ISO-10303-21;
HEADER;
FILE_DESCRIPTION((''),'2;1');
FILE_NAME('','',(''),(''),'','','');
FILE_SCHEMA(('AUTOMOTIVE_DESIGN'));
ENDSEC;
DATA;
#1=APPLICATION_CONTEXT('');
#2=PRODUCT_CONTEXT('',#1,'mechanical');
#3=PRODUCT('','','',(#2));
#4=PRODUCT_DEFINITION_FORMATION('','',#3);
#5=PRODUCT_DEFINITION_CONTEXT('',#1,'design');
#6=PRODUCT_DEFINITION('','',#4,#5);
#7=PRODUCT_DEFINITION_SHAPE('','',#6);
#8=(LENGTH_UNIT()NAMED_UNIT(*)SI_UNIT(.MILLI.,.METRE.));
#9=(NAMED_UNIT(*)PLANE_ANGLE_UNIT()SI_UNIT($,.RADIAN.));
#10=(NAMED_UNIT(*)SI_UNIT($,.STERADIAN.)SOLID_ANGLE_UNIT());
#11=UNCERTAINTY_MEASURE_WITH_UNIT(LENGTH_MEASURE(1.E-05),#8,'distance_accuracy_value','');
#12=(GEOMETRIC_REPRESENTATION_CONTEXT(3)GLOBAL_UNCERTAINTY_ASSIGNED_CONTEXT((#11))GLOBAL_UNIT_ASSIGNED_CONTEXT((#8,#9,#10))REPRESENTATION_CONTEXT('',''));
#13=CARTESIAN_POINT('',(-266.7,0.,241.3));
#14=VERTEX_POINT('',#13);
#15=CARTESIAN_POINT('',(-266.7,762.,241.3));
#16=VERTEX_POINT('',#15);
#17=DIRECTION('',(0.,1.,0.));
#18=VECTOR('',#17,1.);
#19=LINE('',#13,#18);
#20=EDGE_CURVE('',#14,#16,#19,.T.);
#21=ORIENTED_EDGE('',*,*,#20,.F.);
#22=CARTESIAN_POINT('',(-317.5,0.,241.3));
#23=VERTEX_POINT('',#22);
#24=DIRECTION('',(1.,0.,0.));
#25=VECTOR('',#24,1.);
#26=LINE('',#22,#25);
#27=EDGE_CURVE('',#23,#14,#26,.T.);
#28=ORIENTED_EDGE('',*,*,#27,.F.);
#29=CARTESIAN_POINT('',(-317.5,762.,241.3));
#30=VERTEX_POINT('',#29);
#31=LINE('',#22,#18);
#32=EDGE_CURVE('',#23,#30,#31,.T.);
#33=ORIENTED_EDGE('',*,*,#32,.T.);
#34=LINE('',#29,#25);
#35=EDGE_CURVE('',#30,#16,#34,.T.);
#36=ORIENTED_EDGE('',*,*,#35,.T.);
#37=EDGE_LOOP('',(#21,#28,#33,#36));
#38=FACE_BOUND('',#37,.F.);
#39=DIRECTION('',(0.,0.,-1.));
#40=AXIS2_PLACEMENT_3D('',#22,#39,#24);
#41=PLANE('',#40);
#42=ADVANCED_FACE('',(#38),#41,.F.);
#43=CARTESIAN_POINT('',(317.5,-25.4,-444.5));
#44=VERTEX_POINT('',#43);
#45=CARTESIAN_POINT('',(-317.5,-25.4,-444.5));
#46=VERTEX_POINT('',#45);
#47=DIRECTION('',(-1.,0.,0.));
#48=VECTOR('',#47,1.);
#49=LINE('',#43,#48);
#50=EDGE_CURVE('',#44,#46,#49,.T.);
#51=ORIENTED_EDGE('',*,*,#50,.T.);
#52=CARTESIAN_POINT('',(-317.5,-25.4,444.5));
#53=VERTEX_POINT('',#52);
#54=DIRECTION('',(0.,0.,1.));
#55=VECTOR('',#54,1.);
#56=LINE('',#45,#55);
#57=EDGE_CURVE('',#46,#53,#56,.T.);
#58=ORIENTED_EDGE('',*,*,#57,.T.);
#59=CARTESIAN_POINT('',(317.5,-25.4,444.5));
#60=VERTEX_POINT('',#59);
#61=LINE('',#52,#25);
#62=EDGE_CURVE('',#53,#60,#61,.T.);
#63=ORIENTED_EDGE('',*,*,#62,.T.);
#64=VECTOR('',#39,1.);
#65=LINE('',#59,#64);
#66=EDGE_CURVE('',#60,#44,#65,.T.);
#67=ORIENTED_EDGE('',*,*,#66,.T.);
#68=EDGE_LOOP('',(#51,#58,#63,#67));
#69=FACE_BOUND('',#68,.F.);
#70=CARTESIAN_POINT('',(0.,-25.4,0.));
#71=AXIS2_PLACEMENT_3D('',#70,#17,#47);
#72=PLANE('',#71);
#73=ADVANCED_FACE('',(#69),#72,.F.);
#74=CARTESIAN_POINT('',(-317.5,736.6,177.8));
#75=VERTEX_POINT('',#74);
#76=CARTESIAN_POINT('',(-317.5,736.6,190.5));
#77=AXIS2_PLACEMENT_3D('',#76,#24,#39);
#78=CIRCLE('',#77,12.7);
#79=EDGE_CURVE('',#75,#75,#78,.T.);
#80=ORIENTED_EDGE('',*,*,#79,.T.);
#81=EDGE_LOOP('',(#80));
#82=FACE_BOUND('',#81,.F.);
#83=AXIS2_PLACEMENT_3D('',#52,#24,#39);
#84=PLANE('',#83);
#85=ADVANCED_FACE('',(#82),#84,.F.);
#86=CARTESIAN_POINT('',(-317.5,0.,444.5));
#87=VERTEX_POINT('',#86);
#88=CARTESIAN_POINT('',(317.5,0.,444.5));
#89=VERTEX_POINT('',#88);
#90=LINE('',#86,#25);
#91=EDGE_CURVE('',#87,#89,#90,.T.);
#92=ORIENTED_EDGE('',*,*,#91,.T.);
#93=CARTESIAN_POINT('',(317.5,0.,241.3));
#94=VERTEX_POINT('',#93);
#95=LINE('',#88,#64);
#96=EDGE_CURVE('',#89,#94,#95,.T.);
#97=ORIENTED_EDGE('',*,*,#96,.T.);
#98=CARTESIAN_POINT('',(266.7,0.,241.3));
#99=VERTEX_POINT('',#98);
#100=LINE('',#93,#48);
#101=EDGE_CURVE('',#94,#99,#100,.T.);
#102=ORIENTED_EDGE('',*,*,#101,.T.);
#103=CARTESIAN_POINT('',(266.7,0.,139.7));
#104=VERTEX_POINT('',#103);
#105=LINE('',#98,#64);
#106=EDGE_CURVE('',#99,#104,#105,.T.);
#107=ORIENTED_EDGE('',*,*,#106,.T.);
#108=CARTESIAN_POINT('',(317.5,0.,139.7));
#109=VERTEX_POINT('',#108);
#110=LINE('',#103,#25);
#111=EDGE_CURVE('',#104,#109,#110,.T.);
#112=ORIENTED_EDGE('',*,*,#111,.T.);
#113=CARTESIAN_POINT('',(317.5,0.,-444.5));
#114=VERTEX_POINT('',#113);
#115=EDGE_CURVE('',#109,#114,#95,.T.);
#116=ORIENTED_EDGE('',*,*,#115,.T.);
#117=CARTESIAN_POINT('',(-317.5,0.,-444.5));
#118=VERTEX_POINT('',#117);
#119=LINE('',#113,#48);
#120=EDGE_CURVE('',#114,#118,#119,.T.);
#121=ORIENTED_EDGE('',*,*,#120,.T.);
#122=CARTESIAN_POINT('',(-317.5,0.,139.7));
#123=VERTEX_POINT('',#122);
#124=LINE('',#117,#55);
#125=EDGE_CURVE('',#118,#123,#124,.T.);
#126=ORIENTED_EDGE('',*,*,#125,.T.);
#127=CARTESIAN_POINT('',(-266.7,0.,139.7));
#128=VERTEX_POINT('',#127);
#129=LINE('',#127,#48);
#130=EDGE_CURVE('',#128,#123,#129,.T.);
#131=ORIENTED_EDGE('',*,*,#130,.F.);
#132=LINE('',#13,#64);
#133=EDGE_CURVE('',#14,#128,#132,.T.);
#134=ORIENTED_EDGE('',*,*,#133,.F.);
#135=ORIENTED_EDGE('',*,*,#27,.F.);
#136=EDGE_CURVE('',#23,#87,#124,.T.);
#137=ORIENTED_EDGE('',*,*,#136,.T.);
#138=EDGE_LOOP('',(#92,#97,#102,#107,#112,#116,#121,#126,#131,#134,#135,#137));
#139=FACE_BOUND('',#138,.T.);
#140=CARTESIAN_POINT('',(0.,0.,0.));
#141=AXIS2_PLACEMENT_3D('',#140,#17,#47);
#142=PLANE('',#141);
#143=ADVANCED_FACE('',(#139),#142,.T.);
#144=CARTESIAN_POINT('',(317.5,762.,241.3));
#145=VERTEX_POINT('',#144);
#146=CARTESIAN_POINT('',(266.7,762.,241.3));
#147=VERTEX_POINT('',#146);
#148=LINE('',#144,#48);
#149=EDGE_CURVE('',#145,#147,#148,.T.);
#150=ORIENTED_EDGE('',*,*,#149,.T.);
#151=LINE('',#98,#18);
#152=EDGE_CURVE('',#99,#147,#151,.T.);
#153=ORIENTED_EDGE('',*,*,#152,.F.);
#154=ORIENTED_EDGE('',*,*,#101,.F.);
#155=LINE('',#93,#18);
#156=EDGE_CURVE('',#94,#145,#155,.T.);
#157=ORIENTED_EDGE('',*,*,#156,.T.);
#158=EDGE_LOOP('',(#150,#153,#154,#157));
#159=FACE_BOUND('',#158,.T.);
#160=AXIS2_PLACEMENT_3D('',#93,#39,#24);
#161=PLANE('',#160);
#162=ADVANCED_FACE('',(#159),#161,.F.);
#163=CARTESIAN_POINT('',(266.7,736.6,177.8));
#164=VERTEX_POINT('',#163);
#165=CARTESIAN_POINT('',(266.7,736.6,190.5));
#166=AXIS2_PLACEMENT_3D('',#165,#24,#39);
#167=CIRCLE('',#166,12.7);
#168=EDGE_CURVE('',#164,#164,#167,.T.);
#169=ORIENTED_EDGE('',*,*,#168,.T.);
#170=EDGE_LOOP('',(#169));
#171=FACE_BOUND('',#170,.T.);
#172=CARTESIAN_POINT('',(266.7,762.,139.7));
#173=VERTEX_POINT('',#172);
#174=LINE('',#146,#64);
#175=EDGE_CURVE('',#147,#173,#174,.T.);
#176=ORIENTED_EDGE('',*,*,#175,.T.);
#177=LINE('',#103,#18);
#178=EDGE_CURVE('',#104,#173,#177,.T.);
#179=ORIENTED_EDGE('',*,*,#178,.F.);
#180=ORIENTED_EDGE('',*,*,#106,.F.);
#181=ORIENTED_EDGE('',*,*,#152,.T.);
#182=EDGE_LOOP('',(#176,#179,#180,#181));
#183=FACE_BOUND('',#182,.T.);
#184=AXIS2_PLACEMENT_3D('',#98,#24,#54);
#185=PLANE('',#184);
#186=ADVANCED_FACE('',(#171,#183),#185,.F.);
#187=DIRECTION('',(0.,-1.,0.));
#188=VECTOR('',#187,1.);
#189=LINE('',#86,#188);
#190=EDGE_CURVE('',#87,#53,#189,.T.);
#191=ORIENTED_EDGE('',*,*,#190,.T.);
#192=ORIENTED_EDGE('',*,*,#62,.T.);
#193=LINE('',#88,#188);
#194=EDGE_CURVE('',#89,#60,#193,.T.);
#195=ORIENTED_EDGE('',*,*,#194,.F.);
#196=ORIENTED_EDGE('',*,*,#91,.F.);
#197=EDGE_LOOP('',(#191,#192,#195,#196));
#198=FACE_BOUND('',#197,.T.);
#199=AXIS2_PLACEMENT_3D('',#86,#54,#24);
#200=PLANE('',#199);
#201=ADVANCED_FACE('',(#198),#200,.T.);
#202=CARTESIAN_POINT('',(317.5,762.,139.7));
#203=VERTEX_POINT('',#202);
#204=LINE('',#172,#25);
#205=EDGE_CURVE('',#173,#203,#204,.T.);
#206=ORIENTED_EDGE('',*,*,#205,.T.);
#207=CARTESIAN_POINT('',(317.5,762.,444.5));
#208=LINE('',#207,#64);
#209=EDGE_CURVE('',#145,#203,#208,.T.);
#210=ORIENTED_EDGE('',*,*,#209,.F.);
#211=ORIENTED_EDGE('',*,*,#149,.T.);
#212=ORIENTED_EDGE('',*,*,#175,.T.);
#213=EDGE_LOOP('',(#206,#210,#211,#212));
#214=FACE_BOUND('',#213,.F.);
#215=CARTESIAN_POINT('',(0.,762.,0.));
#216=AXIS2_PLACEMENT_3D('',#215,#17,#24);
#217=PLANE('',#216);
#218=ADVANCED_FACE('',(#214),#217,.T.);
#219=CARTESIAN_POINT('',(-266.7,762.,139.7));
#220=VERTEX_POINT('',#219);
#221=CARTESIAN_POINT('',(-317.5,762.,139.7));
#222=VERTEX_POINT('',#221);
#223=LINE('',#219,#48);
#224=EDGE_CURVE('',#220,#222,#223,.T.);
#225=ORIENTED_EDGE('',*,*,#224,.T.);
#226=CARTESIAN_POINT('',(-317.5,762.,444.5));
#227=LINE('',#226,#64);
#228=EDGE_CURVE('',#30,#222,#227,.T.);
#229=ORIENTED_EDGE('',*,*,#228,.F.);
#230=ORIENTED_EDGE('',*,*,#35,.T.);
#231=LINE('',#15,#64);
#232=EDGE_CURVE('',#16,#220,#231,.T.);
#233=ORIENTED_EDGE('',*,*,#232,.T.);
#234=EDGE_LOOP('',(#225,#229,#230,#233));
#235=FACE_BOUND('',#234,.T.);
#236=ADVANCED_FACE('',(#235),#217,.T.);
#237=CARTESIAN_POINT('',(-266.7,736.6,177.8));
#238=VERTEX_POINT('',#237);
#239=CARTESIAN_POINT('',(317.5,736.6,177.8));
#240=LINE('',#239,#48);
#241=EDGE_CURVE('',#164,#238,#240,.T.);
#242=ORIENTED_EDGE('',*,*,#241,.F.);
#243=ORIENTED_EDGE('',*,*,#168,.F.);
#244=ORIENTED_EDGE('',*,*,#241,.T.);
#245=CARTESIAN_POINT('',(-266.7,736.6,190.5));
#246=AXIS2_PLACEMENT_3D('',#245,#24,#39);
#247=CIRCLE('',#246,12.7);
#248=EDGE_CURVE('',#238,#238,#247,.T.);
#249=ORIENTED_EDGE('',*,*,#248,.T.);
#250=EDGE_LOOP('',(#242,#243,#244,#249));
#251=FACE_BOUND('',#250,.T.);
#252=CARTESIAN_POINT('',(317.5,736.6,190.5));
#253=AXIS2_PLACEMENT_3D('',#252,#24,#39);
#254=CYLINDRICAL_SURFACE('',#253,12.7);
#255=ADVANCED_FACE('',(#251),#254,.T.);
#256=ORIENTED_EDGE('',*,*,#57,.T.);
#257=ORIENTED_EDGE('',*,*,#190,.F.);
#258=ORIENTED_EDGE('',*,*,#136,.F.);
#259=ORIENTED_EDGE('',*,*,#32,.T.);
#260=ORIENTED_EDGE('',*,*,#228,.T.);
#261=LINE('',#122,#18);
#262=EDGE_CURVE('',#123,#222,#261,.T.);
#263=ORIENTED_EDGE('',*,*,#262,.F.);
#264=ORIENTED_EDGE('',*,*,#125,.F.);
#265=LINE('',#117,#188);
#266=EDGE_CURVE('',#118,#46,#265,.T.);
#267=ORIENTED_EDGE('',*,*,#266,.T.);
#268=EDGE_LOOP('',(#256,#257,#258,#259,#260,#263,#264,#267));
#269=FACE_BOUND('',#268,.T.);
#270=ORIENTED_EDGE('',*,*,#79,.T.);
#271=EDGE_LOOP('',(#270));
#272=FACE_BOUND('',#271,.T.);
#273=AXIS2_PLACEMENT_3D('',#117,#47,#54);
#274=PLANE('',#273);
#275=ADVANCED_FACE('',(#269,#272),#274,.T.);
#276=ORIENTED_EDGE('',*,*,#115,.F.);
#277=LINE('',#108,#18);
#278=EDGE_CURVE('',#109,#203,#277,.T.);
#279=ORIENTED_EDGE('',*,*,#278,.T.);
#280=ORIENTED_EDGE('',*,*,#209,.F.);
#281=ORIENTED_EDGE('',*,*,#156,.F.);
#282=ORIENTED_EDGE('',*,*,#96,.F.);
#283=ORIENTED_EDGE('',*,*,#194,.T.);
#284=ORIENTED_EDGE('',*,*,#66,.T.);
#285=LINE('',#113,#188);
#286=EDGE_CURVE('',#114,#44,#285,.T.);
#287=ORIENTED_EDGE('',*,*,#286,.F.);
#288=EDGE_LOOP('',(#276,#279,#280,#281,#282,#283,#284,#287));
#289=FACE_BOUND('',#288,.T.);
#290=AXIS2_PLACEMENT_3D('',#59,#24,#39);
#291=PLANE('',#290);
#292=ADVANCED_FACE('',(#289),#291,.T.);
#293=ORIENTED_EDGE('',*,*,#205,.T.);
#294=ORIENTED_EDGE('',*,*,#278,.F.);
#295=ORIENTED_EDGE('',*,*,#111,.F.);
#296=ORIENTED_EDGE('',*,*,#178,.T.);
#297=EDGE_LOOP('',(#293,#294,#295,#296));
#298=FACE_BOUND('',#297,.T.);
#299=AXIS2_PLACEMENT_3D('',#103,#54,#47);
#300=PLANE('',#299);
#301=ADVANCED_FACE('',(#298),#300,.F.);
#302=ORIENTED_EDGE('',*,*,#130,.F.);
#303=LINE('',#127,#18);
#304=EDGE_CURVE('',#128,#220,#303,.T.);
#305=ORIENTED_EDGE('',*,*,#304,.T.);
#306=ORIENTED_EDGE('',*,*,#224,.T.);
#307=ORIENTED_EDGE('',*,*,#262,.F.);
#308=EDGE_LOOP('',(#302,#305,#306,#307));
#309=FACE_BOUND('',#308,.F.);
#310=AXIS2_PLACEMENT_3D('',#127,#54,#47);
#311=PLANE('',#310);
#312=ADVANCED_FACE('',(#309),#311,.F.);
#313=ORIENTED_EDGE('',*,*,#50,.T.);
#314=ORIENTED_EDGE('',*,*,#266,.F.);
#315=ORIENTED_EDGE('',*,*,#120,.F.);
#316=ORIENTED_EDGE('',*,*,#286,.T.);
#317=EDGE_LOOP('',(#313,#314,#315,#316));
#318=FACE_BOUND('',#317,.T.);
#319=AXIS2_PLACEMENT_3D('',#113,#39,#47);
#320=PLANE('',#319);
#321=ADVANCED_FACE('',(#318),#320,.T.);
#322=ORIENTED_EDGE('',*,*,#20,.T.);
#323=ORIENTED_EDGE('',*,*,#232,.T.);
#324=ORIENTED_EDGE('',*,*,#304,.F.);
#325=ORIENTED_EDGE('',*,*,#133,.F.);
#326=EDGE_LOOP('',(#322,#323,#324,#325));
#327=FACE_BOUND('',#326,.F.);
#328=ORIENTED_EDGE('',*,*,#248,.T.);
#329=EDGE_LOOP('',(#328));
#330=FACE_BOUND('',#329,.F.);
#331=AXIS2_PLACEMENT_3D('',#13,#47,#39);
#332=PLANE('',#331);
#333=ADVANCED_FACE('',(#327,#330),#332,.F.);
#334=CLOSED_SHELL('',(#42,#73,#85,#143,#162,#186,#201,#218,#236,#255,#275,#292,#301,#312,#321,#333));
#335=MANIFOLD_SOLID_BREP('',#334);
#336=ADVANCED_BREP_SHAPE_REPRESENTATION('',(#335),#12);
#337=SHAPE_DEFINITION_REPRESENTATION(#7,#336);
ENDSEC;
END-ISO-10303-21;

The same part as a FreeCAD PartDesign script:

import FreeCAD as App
import Part
import Sketcher
from FreeCAD import Vector
Q = App.Units.Quantity


def add_polygon(sketch, points):
    """Adds a closed chain of lines whose ends are joined by coincident constraints."""
    first, n = sketch.GeometryCount, len(points)
    for a, b in zip(points, points[1:] + points[:1]):
        sketch.addGeometry(Part.LineSegment(App.Vector(*a, 0), App.Vector(*b, 0)), False)
    for i in range(n):
        sketch.addConstraint(Sketcher.Constraint("Coincident", first + i, 2, first + (i + 1) % n, 1))

doc = App.newDocument("Part")
params = doc.addObject("Spreadsheet::Sheet", "Params")
for row, (alias, value) in enumerate([
    ("sketch1_width", "25 in"),
    ("sketch1_height", "35 in"),
    ("pad1_length", "1 in"),
    ("sketch2_width", "2 in"),
    ("sketch2_height", "4 in"),
    ("pad2_length", "30 in"),
    ("sketch3_diameter", "1 in"),
], start=1):
    params.set(f"A{row}", alias)
    params.set(f"B{row}", "=" + value)
    params.setAlias(f"B{row}", alias)

body = doc.addObject("PartDesign::Body", "Body")

# Sketch on XZ plane
sketch1 = body.newObject("Sketcher::SketchObject", "Sketch")
sketch1.AttachmentSupport = (doc.getObject("XZ_Plane"), [""])
sketch1.MapMode = "FlatFace"
add_polygon(sketch1, [(-318, -444), (-318, 444), (318, 444), (318, -444)])  # lines 0-3
sketch1.addConstraint(Sketcher.Constraint("Vertical", 0))
sketch1.addConstraint(Sketcher.Constraint("Horizontal", 1))
sketch1.addConstraint(Sketcher.Constraint("Vertical", 2))
sketch1.addConstraint(Sketcher.Constraint("Horizontal", 3))
sketch1.addConstraint(Sketcher.Constraint("Symmetric", 0, 2, 2, 2, -1, 1))
sketch1.addConstraint(Sketcher.Constraint("DistanceX", 1, 1, 1, 2, Q("25 in")))
sketch1.addConstraint(Sketcher.Constraint("DistanceY", 0, 1, 0, 2, Q("35 in")))
sketch1.setExpression("Constraints[9]", "Params.sketch1_width")
sketch1.setExpression("Constraints[10]", "Params.sketch1_height")
pad1 = body.newObject("PartDesign::Pad", "Pad")
pad1.Profile = sketch1
pad1.setExpression("Length", "Params.pad1_length")

# Sketch on XZ plane
sketch2 = body.newObject("Sketcher::SketchObject", "Sketch001")
sketch2.AttachmentSupport = (doc.getObject("XZ_Plane"), [""])
sketch2.MapMode = "FlatFace"
add_polygon(sketch2, [(-318, 140), (-318, 241), (-267, 241), (-267, 140)])  # lines 0-3
sketch2.addConstraint(Sketcher.Constraint("Vertical", 0))
sketch2.addConstraint(Sketcher.Constraint("Horizontal", 1))
sketch2.addConstraint(Sketcher.Constraint("Vertical", 2))
sketch2.addConstraint(Sketcher.Constraint("Horizontal", 3))
sketch2.addConstraint(Sketcher.Constraint("DistanceX", 1, 1, 1, 2, Q("2 in")))
sketch2.addConstraint(Sketcher.Constraint("DistanceY", 0, 1, 0, 2, Q("4 in")))
sketch2.addConstraint(Sketcher.Constraint("DistanceX", 0, 2, -1, 1, Q("12.5 in")))
sketch2.addConstraint(Sketcher.Constraint("DistanceY", -1, 1, 0, 2, Q("9.5 in")))
sketch2.setExpression("Constraints[8]", "Params.sketch2_width")
sketch2.setExpression("Constraints[9]", "Params.sketch2_height")
pad2 = body.newObject("PartDesign::Pad", "Pad001")
pad2.Profile = sketch2
pad2.setExpression("Length", "Params.pad2_length")
pad2.Reversed = True
doc.recompute()

mirrored = body.newObject("PartDesign::Mirrored", "Mirrored")
mirrored.Originals = [pad2]
mirrored.MirrorPlane = (doc.getObject("YZ_Plane"), [""])
body.Tip = mirrored

# Sketch on YZ plane
sketch3 = body.newObject("Sketcher::SketchObject", "Sketch002")
sketch3.AttachmentSupport = (doc.getObject("YZ_Plane"), [""])
sketch3.MapMode = "FlatFace"
sketch3.AttachmentOffset = App.Placement(Vector(0, 0, 12.5 * 25.4), App.Rotation())
sketch3.addGeometry(Part.Circle(Vector(737, 190, 0), Vector(0, 0, 1), 13), False)
sketch3.addConstraint(Sketcher.Constraint("Diameter", 0, Q("1 in")))
sketch3.addConstraint(Sketcher.Constraint("DistanceX", -1, 1, 0, 3, Q("29 in")))
sketch3.addConstraint(Sketcher.Constraint("DistanceY", -1, 1, 0, 3, Q("7.5 in")))
sketch3.setExpression("Constraints[0]", "Params.sketch3_diameter")
pad3 = body.newObject("PartDesign::Pad", "Pad002")
pad3.Profile = sketch3
pad3.Type = "UpToLast"
pad3.Reversed = True

doc.recompute()
